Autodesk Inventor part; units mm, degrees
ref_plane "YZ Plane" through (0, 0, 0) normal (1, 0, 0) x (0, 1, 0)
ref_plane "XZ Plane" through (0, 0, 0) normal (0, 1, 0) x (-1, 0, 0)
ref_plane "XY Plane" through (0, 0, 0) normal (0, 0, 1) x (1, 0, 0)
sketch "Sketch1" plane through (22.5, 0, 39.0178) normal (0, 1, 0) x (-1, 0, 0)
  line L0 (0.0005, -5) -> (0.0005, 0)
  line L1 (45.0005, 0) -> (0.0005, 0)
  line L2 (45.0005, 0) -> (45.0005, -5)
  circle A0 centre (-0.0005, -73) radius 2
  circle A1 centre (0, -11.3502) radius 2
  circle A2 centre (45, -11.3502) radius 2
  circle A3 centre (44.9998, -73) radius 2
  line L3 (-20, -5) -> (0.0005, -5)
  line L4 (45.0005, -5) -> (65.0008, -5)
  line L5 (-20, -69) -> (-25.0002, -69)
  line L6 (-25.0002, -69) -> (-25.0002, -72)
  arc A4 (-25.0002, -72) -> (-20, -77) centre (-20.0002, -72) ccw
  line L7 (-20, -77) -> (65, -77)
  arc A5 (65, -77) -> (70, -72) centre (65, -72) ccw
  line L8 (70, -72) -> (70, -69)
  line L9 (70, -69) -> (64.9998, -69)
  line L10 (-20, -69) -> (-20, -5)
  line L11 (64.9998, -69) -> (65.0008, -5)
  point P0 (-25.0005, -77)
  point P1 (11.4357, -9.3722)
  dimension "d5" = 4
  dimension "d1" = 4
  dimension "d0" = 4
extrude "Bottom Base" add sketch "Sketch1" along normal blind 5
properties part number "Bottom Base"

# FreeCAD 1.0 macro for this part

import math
import FreeCAD as App
import Part
import Sketcher

V = App.Vector
Q = App.Units.Quantity

doc = App.newDocument("Part")
body = doc.addObject("PartDesign::Body", "Body")

# Sketch on XZ plane
sketch1 = doc.addObject("Sketcher::SketchObject", "Sketch")
body.addObject(sketch1)
sketch1.AttachmentSupport = (doc.XZ_Plane, [""])
sketch1.MapMode = "FlatFace"
sketch1.addGeometry([
    Part.LineSegment(V(22.5, 39, 0), V(22.5, 34, 0)),  # 0
    Part.LineSegment(V(22.5, 34, 0), V(42.5, 34, 0)),  # 1
    Part.LineSegment(V(42.5, 34, 0), V(42.5, -30, 0)),  # 2
    Part.LineSegment(V(42.5, -30, 0), V(47.5, -30, 0)),  # 3
    Part.LineSegment(V(47.5, -30, 0), V(47.5, -33, 0)),  # 4
    Part.ArcOfCircle(Part.Circle(V(42.5, -33, 0), V(0, 0, 1), 5), math.radians(-90), math.radians(0)),  # 5
    Part.LineSegment(V(42.5, -38, 0), V(-42.5, -38, 0)),  # 6
    Part.ArcOfCircle(Part.Circle(V(-42.5, -33, 0), V(0, 0, 1), 5), math.radians(180), math.radians(270)),  # 7
    Part.LineSegment(V(-47.5, -33, 0), V(-47.5, -30, 0)),  # 8
    Part.LineSegment(V(-47.5, -30, 0), V(-42.5, -30, 0)),  # 9
    Part.LineSegment(V(-42.5, -30, 0), V(-42.5, 34, 0)),  # 10
    Part.LineSegment(V(-42.5, 34, 0), V(-22.5, 34, 0)),  # 11
    Part.LineSegment(V(-22.5, 34, 0), V(-22.5, 39, 0)),  # 12
    Part.LineSegment(V(-22.5, 39, 0), V(22.5, 39, 0)),  # 13
    Part.Circle(V(22.5, -34, 0), V(0, 0, 1), 2),  # 14
    Part.Circle(V(-22.5, -34, 0), V(0, 0, 1), 2),  # 15
    Part.Circle(V(22.5, 27.7, 0), V(0, 0, 1), 2),  # 16
    Part.Circle(V(-22.5, 27.7, 0), V(0, 0, 1), 2),  # 17
], False)
sketch1.addConstraint([
    Sketcher.Constraint("Coincident", 0, 2, 1, 1),
    Sketcher.Constraint("Coincident", 1, 2, 2, 1),
    Sketcher.Constraint("Coincident", 2, 2, 3, 1),
    Sketcher.Constraint("Coincident", 3, 2, 4, 1),
    Sketcher.Constraint("Tangent", 4, 2, 5, 2),
    Sketcher.Constraint("Tangent", 5, 1, 6, 1),
    Sketcher.Constraint("Tangent", 6, 2, 7, 2),
    Sketcher.Constraint("Tangent", 7, 1, 8, 1),
    Sketcher.Constraint("Coincident", 8, 2, 9, 1),
    Sketcher.Constraint("Coincident", 9, 2, 10, 1),
    Sketcher.Constraint("Coincident", 10, 2, 11, 1),
    Sketcher.Constraint("Coincident", 11, 2, 12, 1),
    Sketcher.Constraint("Coincident", 12, 2, 13, 1),
    Sketcher.Constraint("Coincident", 13, 2, 0, 1),
    Sketcher.Constraint("Vertical", 0),
    Sketcher.Constraint("Horizontal", 1),
    Sketcher.Constraint("Vertical", 2),
    Sketcher.Constraint("Horizontal", 3),
    Sketcher.Constraint("Vertical", 4),
    Sketcher.Constraint("Horizontal", 6),
    Sketcher.Constraint("Vertical", 8),
    Sketcher.Constraint("Horizontal", 9),
    Sketcher.Constraint("Horizontal", 11),
    Sketcher.Constraint("Vertical", 12),
    Sketcher.Constraint("Horizontal", 13),
    Sketcher.Constraint("Equal", 5, 7),
    Sketcher.Constraint("Equal", 14, 15),
    Sketcher.Constraint("Equal", 15, 16),
    Sketcher.Constraint("Equal", 16, 17),
    Sketcher.Constraint("Symmetric", 16, 3, 17, 3, -2),
    Sketcher.Constraint("Symmetric", 3, 2, 8, 2, -2),
    Sketcher.Constraint("Horizontal", 14, 3, 15, 3),
    Sketcher.Constraint("Horizontal", 1, 2, 10, 2),
    Sketcher.Constraint("Vertical", 15, 3, 17, 3),
    Sketcher.Constraint("Vertical", 5, 3, 1, 2),
    Sketcher.Constraint("Vertical", 6, 2, 9, 2),
    Sketcher.Constraint("Equal", 1, 11),
    Sketcher.Constraint("Equal", 9, 0),
    Sketcher.Constraint("Diameter", 14, Q("4 mm")),
    Sketcher.Constraint("Radius", 5, Q("5 mm")),
    Sketcher.Constraint("DistanceY", 14, 3, 2, 2, Q("4 mm")),
    Sketcher.Constraint("DistanceY", 5, 1, 14, 3, Q("4 mm")),
    Sketcher.Constraint("DistanceX", 6, 2, 6, 1, Q("85 mm")),
    Sketcher.Constraint("DistanceX", 13, 1, 13, 2, Q("45 mm")),
    Sketcher.Constraint("DistanceY", 2, 2, 2, 1, Q("64 mm")),
    Sketcher.Constraint("Angle", 10, Q("90.001 deg")),
    Sketcher.Constraint("DistanceX", 15, 3, 5, 3, Q("65 mm")),
    Sketcher.Constraint("DistanceX", 0, 2, 14, 3, Q("0.001 mm")),
    Sketcher.Constraint("DistanceY", 5, 3, -1, 1, Q("32.9822 mm")),
    Sketcher.Constraint("DistanceY", -1, 1, 16, 3, Q("27.6676 mm")),
])
pad1 = doc.addObject("PartDesign::Pad", "Pad")
body.addObject(pad1)
pad1.Profile = sketch1
pad1.Length = 5
pad1.Reversed = True

doc.recompute()
